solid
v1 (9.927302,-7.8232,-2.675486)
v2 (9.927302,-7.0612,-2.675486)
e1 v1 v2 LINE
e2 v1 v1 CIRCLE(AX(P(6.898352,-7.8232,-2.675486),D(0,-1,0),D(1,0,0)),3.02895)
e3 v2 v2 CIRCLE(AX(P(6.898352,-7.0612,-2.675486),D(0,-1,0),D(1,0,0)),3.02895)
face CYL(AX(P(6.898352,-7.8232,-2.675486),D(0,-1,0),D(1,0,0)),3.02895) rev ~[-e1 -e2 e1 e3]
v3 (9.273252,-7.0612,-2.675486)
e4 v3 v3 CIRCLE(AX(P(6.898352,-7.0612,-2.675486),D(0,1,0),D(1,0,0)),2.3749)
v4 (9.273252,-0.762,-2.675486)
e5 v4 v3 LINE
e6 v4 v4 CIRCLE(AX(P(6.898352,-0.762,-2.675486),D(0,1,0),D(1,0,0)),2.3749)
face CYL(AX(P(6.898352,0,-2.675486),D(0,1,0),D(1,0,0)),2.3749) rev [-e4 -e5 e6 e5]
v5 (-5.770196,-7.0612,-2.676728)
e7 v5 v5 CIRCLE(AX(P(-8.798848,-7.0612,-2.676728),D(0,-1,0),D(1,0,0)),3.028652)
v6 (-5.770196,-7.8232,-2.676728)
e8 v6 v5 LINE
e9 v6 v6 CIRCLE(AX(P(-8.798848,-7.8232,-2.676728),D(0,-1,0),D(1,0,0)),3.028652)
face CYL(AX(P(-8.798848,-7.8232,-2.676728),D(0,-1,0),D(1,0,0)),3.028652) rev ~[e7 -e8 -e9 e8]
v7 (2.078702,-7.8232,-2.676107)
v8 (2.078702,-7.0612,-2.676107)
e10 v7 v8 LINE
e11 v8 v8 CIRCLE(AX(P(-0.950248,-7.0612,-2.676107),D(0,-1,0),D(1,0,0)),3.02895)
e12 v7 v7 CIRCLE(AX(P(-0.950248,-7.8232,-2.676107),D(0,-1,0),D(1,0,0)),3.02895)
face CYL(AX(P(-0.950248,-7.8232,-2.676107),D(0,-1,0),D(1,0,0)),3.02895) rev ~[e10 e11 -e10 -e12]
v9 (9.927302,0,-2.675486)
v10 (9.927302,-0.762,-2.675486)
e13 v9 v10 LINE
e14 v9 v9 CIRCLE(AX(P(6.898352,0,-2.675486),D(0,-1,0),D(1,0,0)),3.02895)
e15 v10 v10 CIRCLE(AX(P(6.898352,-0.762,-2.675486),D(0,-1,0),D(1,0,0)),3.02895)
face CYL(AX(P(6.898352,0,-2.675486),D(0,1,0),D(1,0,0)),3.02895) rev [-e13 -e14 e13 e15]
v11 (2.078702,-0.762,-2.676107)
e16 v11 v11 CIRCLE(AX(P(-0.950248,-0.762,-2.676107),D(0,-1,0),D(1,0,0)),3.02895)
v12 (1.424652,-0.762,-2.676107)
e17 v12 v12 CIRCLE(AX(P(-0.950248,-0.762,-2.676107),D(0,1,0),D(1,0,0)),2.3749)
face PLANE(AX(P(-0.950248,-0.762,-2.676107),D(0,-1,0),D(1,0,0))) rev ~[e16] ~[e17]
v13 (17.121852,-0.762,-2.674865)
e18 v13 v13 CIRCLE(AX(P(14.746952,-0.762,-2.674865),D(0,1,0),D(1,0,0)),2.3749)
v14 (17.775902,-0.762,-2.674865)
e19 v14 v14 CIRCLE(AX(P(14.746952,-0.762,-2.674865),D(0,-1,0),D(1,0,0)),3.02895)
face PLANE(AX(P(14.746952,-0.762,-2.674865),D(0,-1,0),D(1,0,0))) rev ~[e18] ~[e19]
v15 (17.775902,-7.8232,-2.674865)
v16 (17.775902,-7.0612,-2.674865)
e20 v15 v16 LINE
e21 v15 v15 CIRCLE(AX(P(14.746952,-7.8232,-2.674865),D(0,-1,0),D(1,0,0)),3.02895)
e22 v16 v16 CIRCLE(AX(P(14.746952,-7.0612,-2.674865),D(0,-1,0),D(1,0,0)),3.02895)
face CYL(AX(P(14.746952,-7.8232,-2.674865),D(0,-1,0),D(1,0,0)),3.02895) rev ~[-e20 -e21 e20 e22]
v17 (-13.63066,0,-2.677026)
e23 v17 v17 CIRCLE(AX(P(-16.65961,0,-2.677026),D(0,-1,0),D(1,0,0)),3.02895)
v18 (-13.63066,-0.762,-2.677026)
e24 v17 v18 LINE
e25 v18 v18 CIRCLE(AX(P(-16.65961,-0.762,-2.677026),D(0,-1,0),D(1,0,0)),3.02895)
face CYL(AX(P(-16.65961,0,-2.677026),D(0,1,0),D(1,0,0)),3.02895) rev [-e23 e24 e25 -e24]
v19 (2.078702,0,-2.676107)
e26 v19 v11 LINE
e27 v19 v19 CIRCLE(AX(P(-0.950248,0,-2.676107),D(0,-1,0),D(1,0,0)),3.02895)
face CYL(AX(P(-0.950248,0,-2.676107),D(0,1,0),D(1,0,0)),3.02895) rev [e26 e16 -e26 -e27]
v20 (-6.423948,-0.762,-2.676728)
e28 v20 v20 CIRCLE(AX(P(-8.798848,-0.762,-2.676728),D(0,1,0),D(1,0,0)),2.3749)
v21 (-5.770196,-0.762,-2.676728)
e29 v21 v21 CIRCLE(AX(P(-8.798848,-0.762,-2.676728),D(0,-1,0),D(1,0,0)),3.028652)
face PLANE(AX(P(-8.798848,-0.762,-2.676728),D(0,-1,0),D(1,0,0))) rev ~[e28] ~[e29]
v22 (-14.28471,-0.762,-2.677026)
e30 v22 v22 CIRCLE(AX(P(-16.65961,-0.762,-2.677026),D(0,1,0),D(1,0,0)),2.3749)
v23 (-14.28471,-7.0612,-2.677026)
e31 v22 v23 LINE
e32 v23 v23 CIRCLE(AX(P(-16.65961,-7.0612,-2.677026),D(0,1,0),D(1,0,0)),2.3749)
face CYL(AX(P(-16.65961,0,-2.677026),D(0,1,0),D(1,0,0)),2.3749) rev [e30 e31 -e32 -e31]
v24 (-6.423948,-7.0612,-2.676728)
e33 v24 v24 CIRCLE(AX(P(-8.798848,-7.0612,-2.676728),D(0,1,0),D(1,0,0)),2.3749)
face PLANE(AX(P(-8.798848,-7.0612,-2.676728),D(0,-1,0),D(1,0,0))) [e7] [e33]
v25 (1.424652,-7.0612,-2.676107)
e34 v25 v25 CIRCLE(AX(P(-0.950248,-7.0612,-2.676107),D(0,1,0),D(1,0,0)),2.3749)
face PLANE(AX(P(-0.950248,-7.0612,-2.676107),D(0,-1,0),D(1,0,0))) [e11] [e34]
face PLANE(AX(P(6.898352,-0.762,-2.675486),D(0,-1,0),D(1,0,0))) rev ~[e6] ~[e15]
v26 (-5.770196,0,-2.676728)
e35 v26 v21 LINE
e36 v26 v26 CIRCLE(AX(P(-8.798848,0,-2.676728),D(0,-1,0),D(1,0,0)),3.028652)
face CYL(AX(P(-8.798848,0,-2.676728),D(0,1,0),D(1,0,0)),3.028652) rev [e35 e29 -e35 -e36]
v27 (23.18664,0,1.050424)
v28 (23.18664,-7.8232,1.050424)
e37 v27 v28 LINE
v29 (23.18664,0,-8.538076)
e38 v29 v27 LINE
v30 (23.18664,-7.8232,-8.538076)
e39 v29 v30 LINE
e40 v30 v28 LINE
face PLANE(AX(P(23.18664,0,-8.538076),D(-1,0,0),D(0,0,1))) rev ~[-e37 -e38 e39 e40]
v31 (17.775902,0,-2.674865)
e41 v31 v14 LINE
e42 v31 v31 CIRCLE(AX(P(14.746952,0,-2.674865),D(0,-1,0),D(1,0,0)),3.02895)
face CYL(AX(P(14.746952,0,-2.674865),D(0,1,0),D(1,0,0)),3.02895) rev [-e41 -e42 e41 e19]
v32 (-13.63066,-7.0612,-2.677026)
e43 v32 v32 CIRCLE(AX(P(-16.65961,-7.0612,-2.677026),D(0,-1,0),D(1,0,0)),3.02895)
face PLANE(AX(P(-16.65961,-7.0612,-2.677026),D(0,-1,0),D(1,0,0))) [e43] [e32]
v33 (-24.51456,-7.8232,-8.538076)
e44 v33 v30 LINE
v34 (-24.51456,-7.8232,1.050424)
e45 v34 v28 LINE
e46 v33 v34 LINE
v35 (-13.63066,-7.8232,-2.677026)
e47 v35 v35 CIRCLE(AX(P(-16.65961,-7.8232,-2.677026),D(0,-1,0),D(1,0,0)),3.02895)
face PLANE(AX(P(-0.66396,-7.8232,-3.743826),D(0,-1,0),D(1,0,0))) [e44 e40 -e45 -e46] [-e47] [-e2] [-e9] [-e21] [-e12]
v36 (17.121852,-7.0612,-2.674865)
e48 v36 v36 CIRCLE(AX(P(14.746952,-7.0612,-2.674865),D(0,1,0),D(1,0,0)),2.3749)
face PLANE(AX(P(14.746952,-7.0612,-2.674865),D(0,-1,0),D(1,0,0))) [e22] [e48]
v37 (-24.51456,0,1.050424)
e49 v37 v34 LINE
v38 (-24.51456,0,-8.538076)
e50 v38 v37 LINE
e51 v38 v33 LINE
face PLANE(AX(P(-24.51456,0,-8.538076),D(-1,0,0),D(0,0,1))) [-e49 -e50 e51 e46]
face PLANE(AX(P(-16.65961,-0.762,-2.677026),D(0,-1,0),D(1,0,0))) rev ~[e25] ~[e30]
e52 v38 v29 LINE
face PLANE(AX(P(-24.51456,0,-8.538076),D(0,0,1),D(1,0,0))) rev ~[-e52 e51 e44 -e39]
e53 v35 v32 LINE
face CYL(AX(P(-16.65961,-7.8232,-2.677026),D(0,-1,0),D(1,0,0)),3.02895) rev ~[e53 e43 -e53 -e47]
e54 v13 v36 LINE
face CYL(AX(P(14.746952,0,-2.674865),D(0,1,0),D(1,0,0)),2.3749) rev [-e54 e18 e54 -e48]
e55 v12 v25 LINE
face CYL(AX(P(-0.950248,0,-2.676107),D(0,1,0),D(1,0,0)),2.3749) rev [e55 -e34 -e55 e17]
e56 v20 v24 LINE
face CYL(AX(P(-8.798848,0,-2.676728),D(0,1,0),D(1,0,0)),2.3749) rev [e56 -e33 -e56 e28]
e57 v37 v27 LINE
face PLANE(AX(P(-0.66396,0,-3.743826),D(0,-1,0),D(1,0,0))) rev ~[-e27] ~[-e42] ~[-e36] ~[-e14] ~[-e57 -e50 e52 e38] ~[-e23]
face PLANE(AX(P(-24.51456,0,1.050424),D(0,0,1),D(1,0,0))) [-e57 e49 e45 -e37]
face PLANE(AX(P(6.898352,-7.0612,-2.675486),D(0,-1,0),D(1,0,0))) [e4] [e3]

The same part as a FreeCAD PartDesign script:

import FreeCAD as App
import Part
import Sketcher
Q = App.Units.Quantity


def add_polygon(sketch, points):
    """Adds a closed chain of lines whose ends are joined by coincident constraints."""
    first, n = sketch.GeometryCount, len(points)
    for a, b in zip(points, points[1:] + points[:1]):
        sketch.addGeometry(Part.LineSegment(App.Vector(*a, 0), App.Vector(*b, 0)), False)
    for i in range(n):
        sketch.addConstraint(Sketcher.Constraint("Coincident", first + i, 2, first + (i + 1) % n, 1))

doc = App.newDocument("Part")
body = doc.addObject("PartDesign::Body", "Body")

# Sketch on XZ plane
sketch1 = body.newObject("Sketcher::SketchObject", "Sketch")
sketch1.AttachmentSupport = (doc.getObject("XZ_Plane"), [""])
sketch1.MapMode = "FlatFace"
add_polygon(sketch1, [(-25, 1), (-25, -9), (23, -9), (23, 1)])  # lines 0-3
sketch1.addConstraint(Sketcher.Constraint("Vertical", 0))
sketch1.addConstraint(Sketcher.Constraint("Horizontal", 1))
sketch1.addConstraint(Sketcher.Constraint("Vertical", 2))
sketch1.addConstraint(Sketcher.Constraint("Horizontal", 3))
sketch1.addConstraint(Sketcher.Constraint("DistanceX", 1, 1, 1, 2, Q("1.878 in")))
sketch1.addConstraint(Sketcher.Constraint("DistanceY", 0, 2, 0, 1, Q("0.3775 in")))
sketch1.addConstraint(Sketcher.Constraint("DistanceX", 0, 2, -1, 1, 24.51456))
sketch1.addConstraint(Sketcher.Constraint("DistanceY", 0, 2, -1, 1, 8.538076))
pad1 = body.newObject("PartDesign::Pad", "Pad")
pad1.Profile = sketch1
pad1.Length = Q("0.308 in")

# Sketch on XZ plane
sketch2 = body.newObject("Sketcher::SketchObject", "Sketch001")
sketch2.AttachmentSupport = (doc.getObject("XZ_Plane"), [""])
sketch2.MapMode = "FlatFace"
sketch2.addGeometry(Part.Circle(App.Vector(14.7, -2.7, 0), App.Vector(0, 0, 1), 2.4), False)
sketch2.addGeometry(Part.Circle(App.Vector(6.9, -2.7, 0), App.Vector(0, 0, 1), 2.4), False)
sketch2.addGeometry(Part.Circle(App.Vector(-1, -2.7, 0), App.Vector(0, 0, 1), 2.4), False)
sketch2.addGeometry(Part.Circle(App.Vector(-8.8, -2.7, 0), App.Vector(0, 0, 1), 2.4), False)
sketch2.addGeometry(Part.Circle(App.Vector(-16.7, -2.7, 0), App.Vector(0, 0, 1), 2.4), False)
sketch2.addConstraint(Sketcher.Constraint("Equal", 0, 1))
sketch2.addConstraint(Sketcher.Constraint("Equal", 1, 2))
sketch2.addConstraint(Sketcher.Constraint("Equal", 2, 3))
sketch2.addConstraint(Sketcher.Constraint("Equal", 3, 4))
sketch2.addConstraint(Sketcher.Constraint("Diameter", 0, Q("0.187 in")))
sketch2.addConstraint(Sketcher.Constraint("DistanceX", 1, 3, 0, 3, Q("0.309 in")))
sketch2.addConstraint(Sketcher.Constraint("DistanceX", 2, 3, 1, 3, Q("0.309 in")))
sketch2.addConstraint(Sketcher.Constraint("DistanceX", 3, 3, 2, 3, Q("0.309 in")))
sketch2.addConstraint(Sketcher.Constraint("DistanceY", 3, 3, -1, 1, 2.676728))
sketch2.addConstraint(Sketcher.Constraint("DistanceX", 4, 3, -1, 1, 16.65961))
sketch2.addConstraint(Sketcher.Constraint("DistanceY", 1, 3, 0, 3, 0.000621))
sketch2.addConstraint(Sketcher.Constraint("DistanceY", 2, 3, 1, 3, 0.000621))
sketch2.addConstraint(Sketcher.Constraint("DistanceY", 3, 3, 2, 3, 0.000621))
sketch2.addConstraint(Sketcher.Constraint("DistanceY", 4, 3, 2, 3, 0.000919))
sketch2.addConstraint(Sketcher.Constraint("DistanceX", 4, 3, 1, 3, 23.557962))
pocket1 = body.newObject("PartDesign::Pocket", "Pocket")
pocket1.Profile = sketch2
pocket1.Length = 8.12476
pocket1.Reversed = True

# Sketch on XZ plane
sketch3 = body.newObject("Sketcher::SketchObject", "Sketch002")
sketch3.AttachmentSupport = (doc.getObject("XZ_Plane"), [""])
sketch3.MapMode = "FlatFace"
sketch3.addGeometry(Part.Circle(App.Vector(14.7, -2.7, 0), App.Vector(0, 0, 1), 3), False)
sketch3.addGeometry(Part.Circle(App.Vector(6.9, -2.7, 0), App.Vector(0, 0, 1), 3), False)
sketch3.addGeometry(Part.Circle(App.Vector(-1, -2.7, 0), App.Vector(0, 0, 1), 3), False)
sketch3.addGeometry(Part.Circle(App.Vector(-8.8, -2.7, 0), App.Vector(0, 0, 1), 3), False)
sketch3.addGeometry(Part.Circle(App.Vector(-16.7, -2.7, 0), App.Vector(0, 0, 1), 3), False)
sketch3.addConstraint(Sketcher.Constraint("Equal", 0, 1))
sketch3.addConstraint(Sketcher.Constraint("Equal", 1, 2))
sketch3.addConstraint(Sketcher.Constraint("Equal", 2, 4))
sketch3.addConstraint(Sketcher.Constraint("Diameter", 0, Q("0.2385 in")))
sketch3.addConstraint(Sketcher.Constraint("DistanceX", 1, 3, 0, 3, Q("0.309 in")))
sketch3.addConstraint(Sketcher.Constraint("DistanceX", 2, 3, 1, 3, Q("0.309 in")))
sketch3.addConstraint(Sketcher.Constraint("DistanceX", 3, 3, 2, 3, Q("0.309 in")))
sketch3.addConstraint(Sketcher.Constraint("Diameter", 3, 6.057304))
sketch3.addConstraint(Sketcher.Constraint("DistanceY", 3, 3, -1, 1, 2.676728))
sketch3.addConstraint(Sketcher.Constraint("DistanceX", 4, 3, -1, 1, 16.65961))
sketch3.addConstraint(Sketcher.Constraint("DistanceY", 1, 3, 0, 3, 0.000621))
sketch3.addConstraint(Sketcher.Constraint("DistanceY", 2, 3, 1, 3, 0.000621))
sketch3.addConstraint(Sketcher.Constraint("DistanceY", 3, 3, 2, 3, 0.000621))
sketch3.addConstraint(Sketcher.Constraint("DistanceY", 4, 3, 2, 3, 0.000919))
sketch3.addConstraint(Sketcher.Constraint("DistanceX", 4, 3, 1, 3, 23.557962))
pocket2 = body.newObject("PartDesign::Pocket", "Pocket001")
pocket2.Profile = sketch3
pocket2.Length = Q("0.03 in")
pocket2.Reversed = True

# Sketch on XZ plane
sketch4 = body.newObject("Sketcher::SketchObject", "Sketch003")
sketch4.AttachmentSupport = (doc.getObject("XZ_Plane"), [""])
sketch4.MapMode = "FlatFace"
sketch4.AttachmentOffset = App.Placement(App.Vector(0, 0, 0.308 * 25.4), App.Rotation())
sketch4.addGeometry(Part.Circle(App.Vector(14.7, -2.7, 0), App.Vector(0, 0, 1), 3), False)
sketch4.addGeometry(Part.Circle(App.Vector(6.9, -2.7, 0), App.Vector(0, 0, 1), 3), False)
sketch4.addGeometry(Part.Circle(App.Vector(-1, -2.7, 0), App.Vector(0, 0, 1), 3), False)
sketch4.addGeometry(Part.Circle(App.Vector(-8.8, -2.7, 0), App.Vector(0, 0, 1), 3), False)
sketch4.addGeometry(Part.Circle(App.Vector(-16.7, -2.7, 0), App.Vector(0, 0, 1), 3), False)
sketch4.addConstraint(Sketcher.Constraint("Equal", 0, 1))
sketch4.addConstraint(Sketcher.Constraint("Equal", 1, 2))
sketch4.addConstraint(Sketcher.Constraint("Equal", 2, 4))
sketch4.addConstraint(Sketcher.Constraint("Diameter", 0, Q("0.2385 in")))
sketch4.addConstraint(Sketcher.Constraint("DistanceX", 1, 3, 0, 3, Q("0.309 in")))
sketch4.addConstraint(Sketcher.Constraint("DistanceX", 2, 3, 1, 3, Q("0.309 in")))
sketch4.addConstraint(Sketcher.Constraint("DistanceX", 3, 3, 2, 3, Q("0.309 in")))
sketch4.addConstraint(Sketcher.Constraint("Diameter", 3, 6.057304))
sketch4.addConstraint(Sketcher.Constraint("DistanceY", 3, 3, -1, 1, 2.676728))
sketch4.addConstraint(Sketcher.Constraint("DistanceX", 4, 3, -1, 1, 16.65961))
sketch4.addConstraint(Sketcher.Constraint("DistanceY", 1, 3, 0, 3, 0.000621))
sketch4.addConstraint(Sketcher.Constraint("DistanceY", 2, 3, 1, 3, 0.000621))
sketch4.addConstraint(Sketcher.Constraint("DistanceY", 3, 3, 2, 3, 0.000621))
sketch4.addConstraint(Sketcher.Constraint("DistanceY", 4, 3, 2, 3, 0.000919))
sketch4.addConstraint(Sketcher.Constraint("DistanceX", 4, 3, 1, 3, 23.557962))
pocket3 = body.newObject("PartDesign::Pocket", "Pocket002")
pocket3.Profile = sketch4
pocket3.Length = Q("0.03 in")

doc.recompute()
